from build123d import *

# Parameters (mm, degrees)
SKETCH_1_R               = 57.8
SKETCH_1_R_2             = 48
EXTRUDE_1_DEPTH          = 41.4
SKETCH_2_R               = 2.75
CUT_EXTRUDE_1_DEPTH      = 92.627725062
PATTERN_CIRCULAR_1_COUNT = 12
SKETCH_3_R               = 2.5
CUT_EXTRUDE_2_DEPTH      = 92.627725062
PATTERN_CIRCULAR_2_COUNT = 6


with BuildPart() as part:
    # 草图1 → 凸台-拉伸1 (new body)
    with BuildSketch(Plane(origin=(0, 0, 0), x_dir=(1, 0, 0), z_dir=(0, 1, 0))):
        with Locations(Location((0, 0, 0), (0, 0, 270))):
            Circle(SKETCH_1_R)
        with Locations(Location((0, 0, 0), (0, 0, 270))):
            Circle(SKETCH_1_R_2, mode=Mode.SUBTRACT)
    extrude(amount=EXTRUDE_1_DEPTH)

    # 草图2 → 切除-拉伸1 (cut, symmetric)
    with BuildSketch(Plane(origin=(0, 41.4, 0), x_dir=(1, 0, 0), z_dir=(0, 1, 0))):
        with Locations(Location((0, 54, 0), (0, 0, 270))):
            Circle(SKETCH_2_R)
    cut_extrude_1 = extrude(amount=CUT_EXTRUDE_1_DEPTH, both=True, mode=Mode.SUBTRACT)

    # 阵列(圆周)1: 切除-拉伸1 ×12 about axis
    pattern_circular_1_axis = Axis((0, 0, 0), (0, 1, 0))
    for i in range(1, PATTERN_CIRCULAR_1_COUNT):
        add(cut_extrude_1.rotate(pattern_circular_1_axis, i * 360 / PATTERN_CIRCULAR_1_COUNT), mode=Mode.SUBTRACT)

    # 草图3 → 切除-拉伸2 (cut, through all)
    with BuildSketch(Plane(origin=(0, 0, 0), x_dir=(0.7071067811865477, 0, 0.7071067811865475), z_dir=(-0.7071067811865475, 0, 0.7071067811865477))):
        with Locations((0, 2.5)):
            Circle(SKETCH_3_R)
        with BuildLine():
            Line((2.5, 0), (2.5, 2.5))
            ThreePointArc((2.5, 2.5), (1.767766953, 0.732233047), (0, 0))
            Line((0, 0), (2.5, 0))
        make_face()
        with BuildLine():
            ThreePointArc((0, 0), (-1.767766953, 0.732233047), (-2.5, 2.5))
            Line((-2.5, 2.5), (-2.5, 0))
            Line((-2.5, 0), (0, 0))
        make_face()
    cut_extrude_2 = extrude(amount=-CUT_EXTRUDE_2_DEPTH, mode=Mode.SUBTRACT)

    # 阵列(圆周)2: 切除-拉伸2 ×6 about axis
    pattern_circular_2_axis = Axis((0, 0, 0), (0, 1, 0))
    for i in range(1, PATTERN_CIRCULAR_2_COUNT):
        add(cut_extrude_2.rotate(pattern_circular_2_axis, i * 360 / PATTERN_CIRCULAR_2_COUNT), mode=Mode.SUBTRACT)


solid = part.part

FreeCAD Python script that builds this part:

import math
import FreeCAD as App
import Part
import Sketcher
Q = App.Units.Quantity

doc = App.newDocument("Part")
body = doc.addObject("PartDesign::Body", "Body")

# Sketch on XZ plane
sketch1 = body.newObject("Sketcher::SketchObject", "Sketch")
sketch1.AttachmentSupport = (doc.getObject("XZ_Plane"), [""])
sketch1.MapMode = "FlatFace"
sketch1.addGeometry([
    Part.Circle(App.Vector(0, 0, 0), App.Vector(0, 0, 1), 57.8),
    Part.Circle(App.Vector(0, 0, 0), App.Vector(0, 0, 1), 48),
], False)
sketch1.addConstraint([
    Sketcher.Constraint("Coincident", 0, 3, -1, 1),
    Sketcher.Constraint("Coincident", 1, 3, -1, 1),
    Sketcher.Constraint("Diameter", 1, Q("96 mm")),
    Sketcher.Constraint("Diameter", 0, Q("115.6 mm")),
])
pad1 = body.newObject("PartDesign::Pad", "Pad")
pad1.Profile = sketch1
pad1.Length = 41.4
pad1.Reversed = True

# Sketch on XZ plane
sketch2 = body.newObject("Sketcher::SketchObject", "Sketch001")
sketch2.AttachmentSupport = (doc.getObject("XZ_Plane"), [""])
sketch2.MapMode = "FlatFace"
sketch2.AttachmentOffset = App.Placement(App.Vector(0, 0, -41.4), App.Rotation())
sketch2.addGeometry(Part.Circle(App.Vector(0, -54, 0), App.Vector(0, 0, 1), 2.75), False)
sketch2.addConstraint([
    Sketcher.Constraint("PointOnObject", 0, 3, -2),
    Sketcher.Constraint("Diameter", 0, Q("5.5 mm")),
    Sketcher.Constraint("DistanceY", 0, 3, -1, 1, Q("54 mm")),
])
pocket1 = body.newObject("PartDesign::Pocket", "Pocket")
pocket1.Profile = sketch2
pocket1.Length = 185.25545
pocket1.Midplane = True
doc.recompute()

polarpattern = body.newObject("PartDesign::PolarPattern", "PolarPattern")
polarpattern.Originals = [pocket1]
polarpattern.Axis = (doc.getObject("Y_Axis"), [""])
polarpattern.Angle = 360
polarpattern.Occurrences = 12
body.Tip = polarpattern

# Sketch on an angled plane
sketch3 = body.newObject("Sketcher::SketchObject", "Sketch002")
sketch3.Placement = App.Placement(App.Vector(0, 0, 0), App.Rotation(App.Vector(0.707106781, 0, 0.707106781), App.Vector(0, 0.999999999, 0), App.Vector(-0.707106781, 0, 0.707106781), "ZXY"))
sketch3.addGeometry([
    Part.ArcOfCircle(Part.Circle(App.Vector(0, 2.5, 0), App.Vector(0, 0, 1), 2.5), math.radians(0), math.radians(180)),
    Part.LineSegment(App.Vector(-2.5, 2.5, 0), App.Vector(-2.5, 0, 0)),
    Part.LineSegment(App.Vector(-2.5, 0, 0), App.Vector(2.5, 0, 0)),
    Part.LineSegment(App.Vector(2.5, 0, 0), App.Vector(2.5, 2.5, 0)),
], False)
sketch3.addConstraint([
    Sketcher.Constraint("Tangent", 0, 2, 1, 1),
    Sketcher.Constraint("Coincident", 1, 2, 2, 1),
    Sketcher.Constraint("Coincident", 2, 2, 3, 1),
    Sketcher.Constraint("Tangent", 3, 2, 0, 1),
    Sketcher.Constraint("Vertical", 1),
    Sketcher.Constraint("Horizontal", 2),
    Sketcher.Constraint("Vertical", 3),
    Sketcher.Constraint("Symmetric", 1, 2, 2, 2, -1, 1),
    Sketcher.Constraint("Radius", 0, Q("2.5 mm")),
    Sketcher.Constraint("DistanceY", 1, 2, 1, 1, Q("2.5 mm")),
])
pocket2 = body.newObject("PartDesign::Pocket", "Pocket001")
pocket2.Profile = sketch3
pocket2.Type = "ThroughAll"
doc.recompute()

polarpattern2 = body.newObject("PartDesign::PolarPattern", "PolarPattern001")
polarpattern2.Originals = [pocket2]
polarpattern2.Axis = (doc.getObject("Y_Axis"), [""])
polarpattern2.Angle = 360
polarpattern2.Occurrences = 6
body.Tip = polarpattern2

doc.recompute()
